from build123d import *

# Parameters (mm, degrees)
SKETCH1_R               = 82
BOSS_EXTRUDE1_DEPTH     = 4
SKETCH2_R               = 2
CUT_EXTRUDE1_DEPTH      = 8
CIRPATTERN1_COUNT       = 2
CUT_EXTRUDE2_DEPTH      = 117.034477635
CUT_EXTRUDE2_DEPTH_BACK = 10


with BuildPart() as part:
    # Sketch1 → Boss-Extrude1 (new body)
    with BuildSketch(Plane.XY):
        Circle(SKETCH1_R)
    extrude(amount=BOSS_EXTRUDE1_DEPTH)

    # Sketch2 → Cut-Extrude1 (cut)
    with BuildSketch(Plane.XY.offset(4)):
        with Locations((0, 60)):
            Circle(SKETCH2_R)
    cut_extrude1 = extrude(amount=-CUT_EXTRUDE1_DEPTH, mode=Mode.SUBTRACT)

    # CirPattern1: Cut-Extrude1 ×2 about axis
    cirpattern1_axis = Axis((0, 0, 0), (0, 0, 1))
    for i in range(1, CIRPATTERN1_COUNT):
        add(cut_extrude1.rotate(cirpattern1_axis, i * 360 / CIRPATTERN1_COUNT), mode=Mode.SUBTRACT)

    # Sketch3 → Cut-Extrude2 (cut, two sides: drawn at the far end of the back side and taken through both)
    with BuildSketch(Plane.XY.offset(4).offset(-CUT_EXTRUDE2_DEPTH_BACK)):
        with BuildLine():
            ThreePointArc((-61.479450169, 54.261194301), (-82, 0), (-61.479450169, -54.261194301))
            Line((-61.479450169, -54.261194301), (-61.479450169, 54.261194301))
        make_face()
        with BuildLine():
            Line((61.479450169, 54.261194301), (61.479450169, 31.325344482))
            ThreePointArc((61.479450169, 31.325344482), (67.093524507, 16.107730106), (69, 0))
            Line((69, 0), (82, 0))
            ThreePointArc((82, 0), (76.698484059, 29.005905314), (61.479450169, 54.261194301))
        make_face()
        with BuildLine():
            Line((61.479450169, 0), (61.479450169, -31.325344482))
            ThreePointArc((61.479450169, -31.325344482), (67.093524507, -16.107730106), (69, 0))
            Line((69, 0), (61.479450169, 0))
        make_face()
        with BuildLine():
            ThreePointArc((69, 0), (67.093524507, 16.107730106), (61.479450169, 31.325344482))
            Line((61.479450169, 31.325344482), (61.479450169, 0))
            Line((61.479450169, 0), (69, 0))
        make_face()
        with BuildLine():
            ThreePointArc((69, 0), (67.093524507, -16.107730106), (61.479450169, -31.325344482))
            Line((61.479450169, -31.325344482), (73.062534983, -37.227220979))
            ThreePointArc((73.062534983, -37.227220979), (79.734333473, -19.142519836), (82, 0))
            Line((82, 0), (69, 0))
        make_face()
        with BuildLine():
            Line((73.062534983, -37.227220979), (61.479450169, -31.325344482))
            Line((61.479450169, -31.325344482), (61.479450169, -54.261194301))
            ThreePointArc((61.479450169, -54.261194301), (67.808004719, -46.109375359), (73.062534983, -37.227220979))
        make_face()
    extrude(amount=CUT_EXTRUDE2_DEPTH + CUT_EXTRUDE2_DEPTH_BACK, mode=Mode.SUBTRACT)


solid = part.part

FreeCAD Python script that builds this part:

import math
import FreeCAD as App
import Part
import Sketcher

V = App.Vector

doc = App.newDocument("Part")
body = doc.addObject("PartDesign::Body", "Body")

# Sketch on XY plane
sketch1 = body.newObject("Sketcher::SketchObject", "Sketch")
sketch1.AttachmentSupport = (doc.getObject("XY_Plane"), [""])
sketch1.MapMode = "FlatFace"
sketch1.addGeometry(Part.Circle(V(0, 0, 0), V(0, 0, 1), 82), False)
sketch1.addConstraint([
    Sketcher.Constraint("Coincident", 0, 3, -1, 1),
    Sketcher.Constraint("Diameter", 0, 164.0),
])
pad1 = body.newObject("PartDesign::Pad", "Pad")
pad1.Profile = sketch1
pad1.Length = 4

# Sketch on XY plane
sketch2 = body.newObject("Sketcher::SketchObject", "Sketch001")
sketch2.AttachmentSupport = (doc.getObject("XY_Plane"), [""])
sketch2.MapMode = "FlatFace"
sketch2.AttachmentOffset = App.Placement(V(0, 0, 4), App.Rotation())
sketch2.addGeometry(Part.Circle(V(0, 60, 0), V(0, 0, 1), 2), False)
sketch2.addConstraint([
    Sketcher.Constraint("PointOnObject", 0, 3, -2),
    Sketcher.Constraint("Diameter", 0, 4.0),
    Sketcher.Constraint("DistanceY", -1, 1, 0, 3, 60.0),
])
pocket1 = body.newObject("PartDesign::Pocket", "Pocket")
pocket1.Profile = sketch2
pocket1.Length = 8
doc.recompute()

polarpattern = body.newObject("PartDesign::PolarPattern", "PolarPattern")
polarpattern.Originals = [pocket1]
polarpattern.Axis = (doc.getObject("Z_Axis"), [""])
polarpattern.Angle = 360
polarpattern.Occurrences = 2
body.Tip = polarpattern

# Sketch on XY plane
sketch3 = body.newObject("Sketcher::SketchObject", "Sketch002")
sketch3.AttachmentSupport = (doc.getObject("XY_Plane"), [""])
sketch3.MapMode = "FlatFace"
sketch3.AttachmentOffset = App.Placement(V(0, 0, 4), App.Rotation())
sketch3.addGeometry([
    Part.ArcOfCircle(Part.Circle(V(0, 0, 0), V(0, 0, 1), 82), math.radians(139), math.radians(221)),  # 0
    Part.LineSegment(V(-61, -54, 0), V(-61, 54, 0)),  # 1
    Part.ArcOfCircle(Part.Circle(V(0, 0, 0), V(0, 0, 1), 82), math.radians(0), math.radians(41)),  # 2
    Part.LineSegment(V(61, 54, 0), V(61, -54, 0)),  # 3
    Part.ArcOfCircle(Part.Circle(V(0, 0, 0), V(0, 0, 1), 82), math.radians(-41.43), math.radians(-27)),  # 4
    Part.ArcOfCircle(Part.Circle(V(0, 0, 0), V(0, 0, 1), 82), math.radians(-27), math.radians(0)),  # 5
], False)
sketch3.addConstraint([
    Sketcher.Constraint("Coincident", 0, 1, 1, 2),
    Sketcher.Constraint("Coincident", 1, 1, 0, 2),
    Sketcher.Constraint("Coincident", 2, 2, 3, 1),
    Sketcher.Constraint("Coincident", 3, 2, 4, 1),
    Sketcher.Constraint("Tangent", 4, 2, 5, 1),
    Sketcher.Constraint("Tangent", 5, 2, 2, 1),
    Sketcher.Constraint("Vertical", 1),
    Sketcher.Constraint("Vertical", 3),
    Sketcher.Constraint("Coincident", 0, 3, -1, 1),
    Sketcher.Constraint("Coincident", 2, 3, -1, 1),
    Sketcher.Constraint("Coincident", 4, 3, -1, 1),
    Sketcher.Constraint("Equal", 0, 2),
    Sketcher.Constraint("PointOnObject", 5, 2, -1),
    Sketcher.Constraint("Horizontal", 0, 1, 2, 2),
    Sketcher.Constraint("Radius", 0, 82.0),
    Sketcher.Constraint("DistanceY", 1, 1, 1, 2, 108.522389),
    Sketcher.Constraint("DistanceY", 4, 2, -1, 1, 37.227221),
])
pocket2 = body.newObject("PartDesign::Pocket", "Pocket001")
pocket2.Profile = sketch3
pocket2.Type = "ThroughAll"
pocket2.Midplane = True

doc.recompute()
